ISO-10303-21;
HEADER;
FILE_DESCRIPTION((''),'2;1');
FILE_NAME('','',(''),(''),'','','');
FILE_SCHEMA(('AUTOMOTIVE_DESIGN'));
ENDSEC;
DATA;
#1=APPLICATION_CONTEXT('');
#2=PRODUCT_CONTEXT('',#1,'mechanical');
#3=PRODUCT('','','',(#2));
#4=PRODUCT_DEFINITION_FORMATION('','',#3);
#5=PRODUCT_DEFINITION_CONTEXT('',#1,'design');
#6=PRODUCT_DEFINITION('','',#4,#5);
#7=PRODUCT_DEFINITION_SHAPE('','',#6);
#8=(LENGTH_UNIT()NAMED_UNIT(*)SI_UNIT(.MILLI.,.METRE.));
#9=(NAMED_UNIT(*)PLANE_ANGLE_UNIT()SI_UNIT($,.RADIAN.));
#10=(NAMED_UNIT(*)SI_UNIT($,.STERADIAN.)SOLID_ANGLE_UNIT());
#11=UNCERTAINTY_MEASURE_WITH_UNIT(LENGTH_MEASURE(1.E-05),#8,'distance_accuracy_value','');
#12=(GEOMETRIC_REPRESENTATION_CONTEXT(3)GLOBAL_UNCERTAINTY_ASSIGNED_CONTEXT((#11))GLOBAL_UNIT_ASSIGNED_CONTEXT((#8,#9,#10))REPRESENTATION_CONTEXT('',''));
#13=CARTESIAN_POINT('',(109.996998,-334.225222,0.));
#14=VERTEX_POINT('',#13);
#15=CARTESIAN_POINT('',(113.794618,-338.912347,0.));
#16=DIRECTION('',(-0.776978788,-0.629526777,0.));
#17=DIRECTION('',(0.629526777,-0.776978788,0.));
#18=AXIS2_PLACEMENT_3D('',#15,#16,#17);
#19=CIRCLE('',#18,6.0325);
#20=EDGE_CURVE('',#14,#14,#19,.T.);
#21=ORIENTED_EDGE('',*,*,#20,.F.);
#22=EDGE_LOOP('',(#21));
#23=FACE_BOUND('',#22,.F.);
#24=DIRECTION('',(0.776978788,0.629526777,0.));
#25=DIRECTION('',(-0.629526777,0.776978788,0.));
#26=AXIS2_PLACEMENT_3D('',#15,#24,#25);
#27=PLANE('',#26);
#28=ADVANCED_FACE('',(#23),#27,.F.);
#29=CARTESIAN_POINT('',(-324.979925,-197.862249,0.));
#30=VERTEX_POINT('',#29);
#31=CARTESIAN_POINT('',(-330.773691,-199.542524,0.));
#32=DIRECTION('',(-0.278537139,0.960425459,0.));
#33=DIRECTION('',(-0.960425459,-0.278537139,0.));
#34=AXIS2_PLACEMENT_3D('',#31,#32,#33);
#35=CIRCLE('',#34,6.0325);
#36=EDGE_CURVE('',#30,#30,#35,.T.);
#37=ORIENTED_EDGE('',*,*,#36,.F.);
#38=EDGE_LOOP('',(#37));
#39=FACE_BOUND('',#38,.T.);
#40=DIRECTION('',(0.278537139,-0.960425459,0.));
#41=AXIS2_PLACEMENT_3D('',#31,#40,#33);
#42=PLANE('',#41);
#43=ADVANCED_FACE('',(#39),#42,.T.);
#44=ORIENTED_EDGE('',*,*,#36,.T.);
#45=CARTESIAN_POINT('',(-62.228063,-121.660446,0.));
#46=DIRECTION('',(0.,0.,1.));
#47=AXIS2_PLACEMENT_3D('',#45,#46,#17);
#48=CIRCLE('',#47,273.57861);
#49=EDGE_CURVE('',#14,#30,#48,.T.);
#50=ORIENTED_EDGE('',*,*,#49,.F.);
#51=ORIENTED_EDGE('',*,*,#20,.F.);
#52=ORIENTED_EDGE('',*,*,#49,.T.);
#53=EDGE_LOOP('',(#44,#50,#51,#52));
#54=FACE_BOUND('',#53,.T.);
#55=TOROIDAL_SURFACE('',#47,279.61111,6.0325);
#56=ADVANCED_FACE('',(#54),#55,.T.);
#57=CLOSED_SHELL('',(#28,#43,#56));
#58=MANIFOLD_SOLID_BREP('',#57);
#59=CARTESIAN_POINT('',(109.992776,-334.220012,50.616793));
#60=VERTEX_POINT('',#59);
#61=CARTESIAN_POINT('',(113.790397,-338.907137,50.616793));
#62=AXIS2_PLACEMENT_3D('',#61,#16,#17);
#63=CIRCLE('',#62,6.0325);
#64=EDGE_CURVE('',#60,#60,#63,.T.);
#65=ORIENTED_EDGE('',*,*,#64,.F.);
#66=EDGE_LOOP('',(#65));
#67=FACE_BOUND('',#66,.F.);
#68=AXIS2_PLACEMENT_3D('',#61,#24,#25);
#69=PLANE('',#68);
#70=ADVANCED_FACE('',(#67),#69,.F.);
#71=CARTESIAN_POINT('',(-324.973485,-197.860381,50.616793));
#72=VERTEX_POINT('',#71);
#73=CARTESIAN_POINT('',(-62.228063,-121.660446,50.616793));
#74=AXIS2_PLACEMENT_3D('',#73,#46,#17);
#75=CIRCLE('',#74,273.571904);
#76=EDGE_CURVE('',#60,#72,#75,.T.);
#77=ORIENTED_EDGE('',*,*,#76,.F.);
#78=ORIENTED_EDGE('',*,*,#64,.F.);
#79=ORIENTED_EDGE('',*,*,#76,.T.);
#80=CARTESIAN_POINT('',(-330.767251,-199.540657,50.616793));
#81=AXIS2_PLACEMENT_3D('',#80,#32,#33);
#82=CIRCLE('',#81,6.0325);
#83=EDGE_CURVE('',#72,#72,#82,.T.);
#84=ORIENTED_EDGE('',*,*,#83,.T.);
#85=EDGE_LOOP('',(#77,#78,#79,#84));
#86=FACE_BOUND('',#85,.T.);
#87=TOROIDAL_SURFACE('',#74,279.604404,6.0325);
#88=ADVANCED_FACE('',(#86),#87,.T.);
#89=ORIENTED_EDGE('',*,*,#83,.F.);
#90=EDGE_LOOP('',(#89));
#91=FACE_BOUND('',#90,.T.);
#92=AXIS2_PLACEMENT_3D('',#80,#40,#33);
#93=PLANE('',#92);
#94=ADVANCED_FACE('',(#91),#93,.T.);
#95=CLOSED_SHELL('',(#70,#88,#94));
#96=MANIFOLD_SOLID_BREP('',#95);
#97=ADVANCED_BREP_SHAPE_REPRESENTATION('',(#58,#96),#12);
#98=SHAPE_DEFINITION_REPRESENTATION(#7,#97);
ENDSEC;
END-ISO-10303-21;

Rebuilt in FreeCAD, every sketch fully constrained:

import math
import FreeCAD as App
import Part
import Sketcher

V = App.Vector
Q = App.Units.Quantity

doc = App.newDocument("Part")
body = doc.addObject("PartDesign::Body", "Body")

# Sketch on an angled plane
sketch1 = body.newObject("Sketcher::SketchObject", "Sketch")
sketch1.Placement = App.Placement(V(27.718056, -95.574783, 0), App.Rotation(V(0.960425459, 0.278537139, 0), V(0, 0, 1), V(0.278537139, -0.960425459, 0), "ZXY"))
sketch1.addGeometry(Part.Circle(V(-373, 51, 0), V(0, 0, 1), 6), False)
sketch1.addConstraint([
    Sketcher.Constraint("Diameter", 0, Q("0.475 in")),
    Sketcher.Constraint("DistanceX", 0, 3, -1, 1, 373.256773),
    Sketcher.Constraint("DistanceY", -1, 1, 0, 3, 50.616793),
])

# Sketch on XY plane
sketch2 = body.newObject("Sketcher::SketchObject", "Sketch001")
sketch2.AttachmentSupport = (doc.getObject("XY_Plane"), [""])
sketch2.MapMode = "FlatFace"
sketch2.AttachmentOffset = App.Placement(V(0, 0, 2 * 25.4), App.Rotation())
sketch2.addGeometry(Part.ArcOfCircle(Part.Circle(V(-62, -122, 0), V(0, 0, 1), 279), math.radians(-51), math.radians(196)), False)
sketch2.addConstraint([
    Sketcher.Constraint("Radius", 0, Q("11 in")),
    Sketcher.Constraint("DistanceX", -1, 1, 0, 1, 113.661719),
    Sketcher.Constraint("DistanceY", 0, 1, -1, 1, 338.748319),
    Sketcher.Constraint("DistanceX", 0, 3, 0, 1, 175.889782),
    Sketcher.Constraint("DistanceX", 0, 2, -1, 1, 330.570936),
])
doc.recompute()

additivepipe = body.newObject("PartDesign::AdditivePipe", "AdditivePipe")
additivepipe.Profile = sketch1
additivepipe.Spine = (sketch2, ["Edge1"])
body2 = doc.addObject("PartDesign::Body", "Body001")

# Sketch on an angled plane
sketch3 = body2.newObject("Sketcher::SketchObject", "Sketch002")
sketch3.Placement = App.Placement(V(27.718056, -95.574783, 0), App.Rotation(V(0.960425459, 0.278537139, 0), V(0, 0, 1), V(0.278537139, -0.960425459, 0), "ZXY"))
sketch3.addGeometry(Part.Circle(V(-373, 0, 0), V(0, 0, 1), 6), False)
sketch3.addConstraint([
    Sketcher.Constraint("PointOnObject", 0, 3, -1),
    Sketcher.Constraint("Diameter", 0, Q("0.475 in")),
    Sketcher.Constraint("DistanceX", 0, 3, -1, 1, 373.263478),
])

# Sketch on XY plane
sketch4 = body2.newObject("Sketcher::SketchObject", "Sketch003")
sketch4.AttachmentSupport = (doc.getObject("XY_Plane001"), [""])
sketch4.MapMode = "FlatFace"
sketch4.addGeometry(Part.ArcOfCircle(Part.Circle(V(-62, -122, 0), V(0, 0, 1), 279), math.radians(-51), math.radians(196)), False)
sketch4.addConstraint([
    Sketcher.Constraint("Radius", 0, Q("11 in")),
    Sketcher.Constraint("DistanceX", -1, 1, 0, 1, 113.661719),
    Sketcher.Constraint("DistanceY", 0, 1, -1, 1, 338.748319),
    Sketcher.Constraint("DistanceX", 0, 3, 0, 1, 175.889782),
    Sketcher.Constraint("DistanceX", 0, 2, -1, 1, 330.570936),
])
doc.recompute()

additivepipe2 = body2.newObject("PartDesign::AdditivePipe", "AdditivePipe001")
additivepipe2.Profile = sketch3
additivepipe2.Spine = (sketch4, ["Edge1"])

doc.recompute()
